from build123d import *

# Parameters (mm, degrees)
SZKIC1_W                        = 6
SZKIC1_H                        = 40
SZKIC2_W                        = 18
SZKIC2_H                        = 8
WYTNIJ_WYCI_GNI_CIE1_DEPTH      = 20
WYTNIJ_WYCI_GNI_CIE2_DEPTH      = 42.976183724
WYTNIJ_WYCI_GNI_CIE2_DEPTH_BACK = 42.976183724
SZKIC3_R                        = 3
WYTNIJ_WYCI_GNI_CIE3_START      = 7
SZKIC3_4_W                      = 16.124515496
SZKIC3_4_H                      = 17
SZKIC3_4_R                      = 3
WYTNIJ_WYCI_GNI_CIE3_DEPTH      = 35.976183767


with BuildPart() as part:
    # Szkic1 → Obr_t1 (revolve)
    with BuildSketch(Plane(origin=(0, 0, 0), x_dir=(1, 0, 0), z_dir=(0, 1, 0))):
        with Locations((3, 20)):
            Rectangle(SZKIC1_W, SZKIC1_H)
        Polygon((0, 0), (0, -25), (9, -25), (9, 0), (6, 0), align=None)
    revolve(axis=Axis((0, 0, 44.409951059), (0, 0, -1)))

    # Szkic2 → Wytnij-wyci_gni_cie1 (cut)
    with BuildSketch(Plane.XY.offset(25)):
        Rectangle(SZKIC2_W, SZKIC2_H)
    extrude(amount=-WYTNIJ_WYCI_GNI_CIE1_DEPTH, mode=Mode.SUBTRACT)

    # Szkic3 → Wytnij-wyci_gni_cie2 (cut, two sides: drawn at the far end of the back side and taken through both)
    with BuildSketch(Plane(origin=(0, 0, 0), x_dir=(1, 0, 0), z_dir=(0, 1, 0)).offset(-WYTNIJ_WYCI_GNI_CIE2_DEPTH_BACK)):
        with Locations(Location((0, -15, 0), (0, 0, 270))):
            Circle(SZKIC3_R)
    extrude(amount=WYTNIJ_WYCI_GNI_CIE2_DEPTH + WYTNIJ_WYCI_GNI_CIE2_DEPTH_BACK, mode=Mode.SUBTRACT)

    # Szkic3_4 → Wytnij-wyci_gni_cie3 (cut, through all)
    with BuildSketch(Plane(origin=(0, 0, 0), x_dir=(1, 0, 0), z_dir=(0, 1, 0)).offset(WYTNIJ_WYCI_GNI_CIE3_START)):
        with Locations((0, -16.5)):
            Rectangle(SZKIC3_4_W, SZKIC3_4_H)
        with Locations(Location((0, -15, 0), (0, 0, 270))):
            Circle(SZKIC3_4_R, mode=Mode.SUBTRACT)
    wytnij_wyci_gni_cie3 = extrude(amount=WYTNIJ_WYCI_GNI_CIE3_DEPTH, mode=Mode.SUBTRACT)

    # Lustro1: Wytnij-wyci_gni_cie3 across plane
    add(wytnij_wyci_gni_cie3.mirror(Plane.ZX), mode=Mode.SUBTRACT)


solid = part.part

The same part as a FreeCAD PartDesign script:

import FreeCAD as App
import Part
import Sketcher
from FreeCAD import Vector
Q = App.Units.Quantity


def add_polygon(sketch, points):
    """Adds a closed chain of lines whose ends are joined by coincident constraints."""
    first, n = sketch.GeometryCount, len(points)
    for a, b in zip(points, points[1:] + points[:1]):
        sketch.addGeometry(Part.LineSegment(App.Vector(*a, 0), App.Vector(*b, 0)), False)
    for i in range(n):
        sketch.addConstraint(Sketcher.Constraint("Coincident", first + i, 2, first + (i + 1) % n, 1))

doc = App.newDocument("Part")
body = doc.addObject("PartDesign::Body", "Body")

sketch1 = body.newObject("Sketcher::SketchObject", "Sketch")
sketch1.AttachmentSupport = (doc.getObject("XZ_Plane"), [""])
sketch1.MapMode = "FlatFace"
add_polygon(sketch1, [(0, -40), (0, 25), (9, 25), (9, 0), (6, 0), (6, -40)])
sketch1.addConstraint(Sketcher.Constraint("Vertical", 0))
sketch1.addConstraint(Sketcher.Constraint("Horizontal", 1))
sketch1.addConstraint(Sketcher.Constraint("Vertical", 2))
sketch1.addConstraint(Sketcher.Constraint("Horizontal", 3))
sketch1.addConstraint(Sketcher.Constraint("Vertical", 4))
sketch1.addConstraint(Sketcher.Constraint("Horizontal", 5))
sketch1.addConstraint(Sketcher.Constraint("PointOnObject", 0, 2, -2))
sketch1.addConstraint(Sketcher.Constraint("PointOnObject", 2, 2, -1))
sketch1.addConstraint(Sketcher.Constraint("DistanceX", 1, 1, 1, 2, Q("9 mm")))
sketch1.addConstraint(Sketcher.Constraint("DistanceX", 3, 2, 3, 1, Q("3 mm")))
sketch1.addConstraint(Sketcher.Constraint("DistanceY", 0, 1, 0, 2, Q("65 mm")))
sketch1.addConstraint(Sketcher.Constraint("DistanceY", 2, 2, 2, 1, Q("25 mm")))
revolution = body.newObject("PartDesign::Revolution", "Revolution")
revolution.Profile = sketch1
revolution.ReferenceAxis = (sketch1, ["V_Axis"])
revolution.Angle = 360

sketch2 = body.newObject("Sketcher::SketchObject", "Sketch001")
sketch2.AttachmentSupport = (doc.getObject("XY_Plane"), [""])
sketch2.MapMode = "FlatFace"
sketch2.AttachmentOffset = App.Placement(Vector(0, 0, 25), App.Rotation())
add_polygon(sketch2, [(-9, 4), (-9, -4), (9, -4), (9, 4)])
sketch2.addConstraint(Sketcher.Constraint("Vertical", 0))
sketch2.addConstraint(Sketcher.Constraint("Horizontal", 1))
sketch2.addConstraint(Sketcher.Constraint("Vertical", 2))
sketch2.addConstraint(Sketcher.Constraint("Horizontal", 3))
sketch2.addConstraint(Sketcher.Constraint("Symmetric", 0, 2, 2, 2, -1, 1))
sketch2.addConstraint(Sketcher.Constraint("DistanceX", 1, 1, 1, 2, Q("18 mm")))
sketch2.addConstraint(Sketcher.Constraint("DistanceY", 0, 2, 0, 1, Q("8 mm")))
pocket1 = body.newObject("PartDesign::Pocket", "Pocket")
pocket1.Profile = sketch2
pocket1.Length = 20

sketch3 = body.newObject("Sketcher::SketchObject", "Sketch002")
sketch3.AttachmentSupport = (doc.getObject("XZ_Plane"), [""])
sketch3.MapMode = "FlatFace"
sketch3.addGeometry(Part.Circle(Vector(0, 15, 0), Vector(0, 0, 1), 3), False)
sketch3.addConstraint(Sketcher.Constraint("PointOnObject", 0, 3, -2))
sketch3.addConstraint(Sketcher.Constraint("Diameter", 0, Q("6 mm")))
sketch3.addConstraint(Sketcher.Constraint("DistanceY", -1, 1, 0, 3, Q("15 mm")))
pocket2 = body.newObject("PartDesign::Pocket", "Pocket001")
pocket2.Profile = sketch3
pocket2.Type = "ThroughAll"
pocket2.Midplane = True

sketch4 = body.newObject("Sketcher::SketchObject", "Sketch003")
sketch4.AttachmentSupport = (doc.getObject("XZ_Plane"), [""])
sketch4.MapMode = "FlatFace"
sketch4.AttachmentOffset = App.Placement(Vector(0, 0, -7), App.Rotation())
add_polygon(sketch4, [(-8.062258, 8), (-8.062258, 25), (8.062258, 25), (8.062258, 8)])
sketch4.addGeometry(Part.Circle(Vector(0, 15, 0), Vector(0, 0, 1), 3), False)
sketch4.addConstraint(Sketcher.Constraint("Vertical", 0))
sketch4.addConstraint(Sketcher.Constraint("Horizontal", 1))
sketch4.addConstraint(Sketcher.Constraint("Vertical", 2))
sketch4.addConstraint(Sketcher.Constraint("Horizontal", 3))
sketch4.addConstraint(Sketcher.Constraint("PointOnObject", 4, 3, -2))
sketch4.addConstraint(Sketcher.Constraint("Diameter", 4, Q("6 mm")))
sketch4.addConstraint(Sketcher.Constraint("DistanceY", 0, 1, 0, 2, Q("17 mm")))
sketch4.addConstraint(Sketcher.Constraint("DistanceY", -1, 1, 4, 3, Q("15 mm")))
sketch4.addConstraint(Sketcher.Constraint("DistanceY", -1, 1, 0, 2, Q("25 mm")))
sketch4.addConstraint(Sketcher.Constraint("DistanceX", 1, 1, 1, 2, Q("16.124515 mm")))
sketch4.addConstraint(Sketcher.Constraint("DistanceX", 0, 2, -1, 1, Q("8.062258 mm")))
pocket3 = body.newObject("PartDesign::Pocket", "Pocket002")
pocket3.Profile = sketch4
pocket3.Type = "ThroughAll"
doc.recompute()

mirrored = body.newObject("PartDesign::Mirrored", "Mirrored")
mirrored.Originals = [pocket3]
mirrored.MirrorPlane = (doc.getObject("XZ_Plane"), [""])
body.Tip = mirrored

doc.recompute()
